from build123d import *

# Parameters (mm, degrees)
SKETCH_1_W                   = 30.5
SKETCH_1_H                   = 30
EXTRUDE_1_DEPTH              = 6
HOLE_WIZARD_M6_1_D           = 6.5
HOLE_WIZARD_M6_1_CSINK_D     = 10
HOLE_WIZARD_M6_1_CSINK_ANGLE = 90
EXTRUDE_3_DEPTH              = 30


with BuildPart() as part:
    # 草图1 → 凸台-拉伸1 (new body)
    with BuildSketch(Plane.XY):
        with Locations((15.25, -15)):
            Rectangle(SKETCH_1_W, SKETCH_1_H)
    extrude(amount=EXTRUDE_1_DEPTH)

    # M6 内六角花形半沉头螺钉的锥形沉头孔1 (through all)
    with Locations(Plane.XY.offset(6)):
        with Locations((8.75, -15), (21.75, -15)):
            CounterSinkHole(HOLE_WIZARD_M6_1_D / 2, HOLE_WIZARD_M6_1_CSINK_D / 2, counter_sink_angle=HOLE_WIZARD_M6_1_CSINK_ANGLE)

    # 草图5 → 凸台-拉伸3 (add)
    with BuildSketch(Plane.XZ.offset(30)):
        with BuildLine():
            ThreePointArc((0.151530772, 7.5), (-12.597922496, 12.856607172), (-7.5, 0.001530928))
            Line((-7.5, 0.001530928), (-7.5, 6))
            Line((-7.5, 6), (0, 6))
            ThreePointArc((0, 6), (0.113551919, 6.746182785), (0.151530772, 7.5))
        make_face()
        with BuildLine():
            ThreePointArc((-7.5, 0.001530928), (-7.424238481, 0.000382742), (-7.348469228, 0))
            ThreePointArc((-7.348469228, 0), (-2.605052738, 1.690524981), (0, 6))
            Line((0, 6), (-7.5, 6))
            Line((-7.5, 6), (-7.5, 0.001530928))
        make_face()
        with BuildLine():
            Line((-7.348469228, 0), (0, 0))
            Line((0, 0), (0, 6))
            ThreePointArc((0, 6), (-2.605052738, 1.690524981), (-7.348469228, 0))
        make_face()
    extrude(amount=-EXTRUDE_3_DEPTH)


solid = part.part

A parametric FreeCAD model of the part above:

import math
import FreeCAD as App
import Part
import Sketcher

V = App.Vector
Q = App.Units.Quantity

doc = App.newDocument("Part")
body = doc.addObject("PartDesign::Body", "Body")

# Sketch on XY plane
sketch1 = body.newObject("Sketcher::SketchObject", "Sketch")
sketch1.AttachmentSupport = (doc.getObject("XY_Plane"), [""])
sketch1.MapMode = "FlatFace"
sketch1.addGeometry([
    Part.LineSegment(V(0, 0, 0), V(0, -30, 0)),
    Part.LineSegment(V(0, -30, 0), V(30.5, -30, 0)),
    Part.LineSegment(V(30.5, -30, 0), V(30.5, 0, 0)),
    Part.LineSegment(V(30.5, 0, 0), V(0, 0, 0)),
], False)
sketch1.addConstraint([
    Sketcher.Constraint("Coincident", 0, 2, 1, 1),
    Sketcher.Constraint("Coincident", 1, 2, 2, 1),
    Sketcher.Constraint("Coincident", 2, 2, 3, 1),
    Sketcher.Constraint("Coincident", 3, 2, 0, 1),
    Sketcher.Constraint("Vertical", 0),
    Sketcher.Constraint("Horizontal", 1),
    Sketcher.Constraint("Vertical", 2),
    Sketcher.Constraint("Horizontal", 3),
    Sketcher.Constraint("Coincident", 3, 2, -1, 1),
    Sketcher.Constraint("DistanceY", 0, 2, 0, 1, Q("30 mm")),
    Sketcher.Constraint("DistanceX", 1, 1, 1, 2, Q("30.5 mm")),
])
pad1 = body.newObject("PartDesign::Pad", "Pad")
pad1.Profile = sketch1
pad1.Length = 6

# Sketch on XY plane
sketch2 = body.newObject("Sketcher::SketchObject", "Sketch001")
sketch2.AttachmentSupport = (doc.getObject("XY_Plane"), [""])
sketch2.MapMode = "FlatFace"
sketch2.AttachmentOffset = App.Placement(V(0, 0, 6), App.Rotation())
sketch2.addGeometry([
    Part.Circle(V(8.75, -15, 0), V(0, 0, 1), 3.25),
    Part.Circle(V(21.75, -15, 0), V(0, 0, 1), 3.25),
], False)
sketch2.addConstraint([
    Sketcher.Constraint("Equal", 0, 1),
    Sketcher.Constraint("Horizontal", 0, 3, 1, 3),
    Sketcher.Constraint("Diameter", 0, Q("6.5 mm")),
    Sketcher.Constraint("DistanceY", 0, 3, -1, 1, Q("15 mm")),
    Sketcher.Constraint("DistanceX", 0, 3, 1, 3, Q("13 mm")),
    Sketcher.Constraint("DistanceX", -1, 1, 0, 3, Q("8.75 mm")),
])
doc.recompute()
hole = body.newObject("PartDesign::Hole", "Hole")
hole.Profile = sketch2
hole.ThreadType = "None"
hole.Diameter = 6.5
hole.DepthType = "ThroughAll"
hole.HoleCutType = "Countersink"
hole.HoleCutDiameter = 10
hole.HoleCutCountersinkAngle = 90

# Sketch on XZ plane
sketch3 = body.newObject("Sketcher::SketchObject", "Sketch002")
sketch3.AttachmentSupport = (doc.getObject("XZ_Plane"), [""])
sketch3.MapMode = "FlatFace"
sketch3.AttachmentOffset = App.Placement(V(0, 0, 30), App.Rotation())
sketch3.addGeometry([
    Part.ArcOfCircle(Part.Circle(V(-7.348469, 7.5, 0), V(0, 0, 1), 7.5), math.radians(0), math.radians(268.842311)),  # 0
    Part.ArcOfCircle(Part.Circle(V(-7.348469, 7.500004, 0), V(0, 0, 1), 7.500004), math.radians(-91.157688), math.radians(-90)),  # 1
    Part.LineSegment(V(-7.348469, 0, 0), V(0, 0, 0)),  # 2
    Part.LineSegment(V(0, 0, 0), V(0, 6, 0)),  # 3
    Part.ArcOfCircle(Part.Circle(V(-7.348469, 7.5, 0), V(0, 0, 1), 7.5), math.radians(-11.536959), math.radians(0)),  # 4
], False)
sketch3.addConstraint([
    Sketcher.Constraint("Tangent", 0, 2, 1, 1),
    Sketcher.Constraint("Tangent", 1, 2, 2, 1),
    Sketcher.Constraint("Coincident", 2, 2, 3, 1),
    Sketcher.Constraint("Coincident", 3, 2, 4, 1),
    Sketcher.Constraint("Tangent", 4, 2, 0, 1),
    Sketcher.Constraint("Horizontal", 2),
    Sketcher.Constraint("Vertical", 3),
    Sketcher.Constraint("Coincident", 2, 2, -1, 1),
    Sketcher.Constraint("Equal", 0, 4),
    Sketcher.Constraint("Horizontal", 0, 3, 4, 2),
    Sketcher.Constraint("Vertical", 4, 3, 1, 2),
    Sketcher.Constraint("Radius", 0, Q("7.5 mm")),
    Sketcher.Constraint("DistanceY", 3, 1, 3, 2, Q("6 mm")),
    Sketcher.Constraint("DistanceX", 0, 2, -1, 1, Q("7.5 mm")),
])
pad2 = body.newObject("PartDesign::Pad", "Pad001")
pad2.Profile = sketch3
pad2.Length = 30
pad2.Reversed = True

doc.recompute()
